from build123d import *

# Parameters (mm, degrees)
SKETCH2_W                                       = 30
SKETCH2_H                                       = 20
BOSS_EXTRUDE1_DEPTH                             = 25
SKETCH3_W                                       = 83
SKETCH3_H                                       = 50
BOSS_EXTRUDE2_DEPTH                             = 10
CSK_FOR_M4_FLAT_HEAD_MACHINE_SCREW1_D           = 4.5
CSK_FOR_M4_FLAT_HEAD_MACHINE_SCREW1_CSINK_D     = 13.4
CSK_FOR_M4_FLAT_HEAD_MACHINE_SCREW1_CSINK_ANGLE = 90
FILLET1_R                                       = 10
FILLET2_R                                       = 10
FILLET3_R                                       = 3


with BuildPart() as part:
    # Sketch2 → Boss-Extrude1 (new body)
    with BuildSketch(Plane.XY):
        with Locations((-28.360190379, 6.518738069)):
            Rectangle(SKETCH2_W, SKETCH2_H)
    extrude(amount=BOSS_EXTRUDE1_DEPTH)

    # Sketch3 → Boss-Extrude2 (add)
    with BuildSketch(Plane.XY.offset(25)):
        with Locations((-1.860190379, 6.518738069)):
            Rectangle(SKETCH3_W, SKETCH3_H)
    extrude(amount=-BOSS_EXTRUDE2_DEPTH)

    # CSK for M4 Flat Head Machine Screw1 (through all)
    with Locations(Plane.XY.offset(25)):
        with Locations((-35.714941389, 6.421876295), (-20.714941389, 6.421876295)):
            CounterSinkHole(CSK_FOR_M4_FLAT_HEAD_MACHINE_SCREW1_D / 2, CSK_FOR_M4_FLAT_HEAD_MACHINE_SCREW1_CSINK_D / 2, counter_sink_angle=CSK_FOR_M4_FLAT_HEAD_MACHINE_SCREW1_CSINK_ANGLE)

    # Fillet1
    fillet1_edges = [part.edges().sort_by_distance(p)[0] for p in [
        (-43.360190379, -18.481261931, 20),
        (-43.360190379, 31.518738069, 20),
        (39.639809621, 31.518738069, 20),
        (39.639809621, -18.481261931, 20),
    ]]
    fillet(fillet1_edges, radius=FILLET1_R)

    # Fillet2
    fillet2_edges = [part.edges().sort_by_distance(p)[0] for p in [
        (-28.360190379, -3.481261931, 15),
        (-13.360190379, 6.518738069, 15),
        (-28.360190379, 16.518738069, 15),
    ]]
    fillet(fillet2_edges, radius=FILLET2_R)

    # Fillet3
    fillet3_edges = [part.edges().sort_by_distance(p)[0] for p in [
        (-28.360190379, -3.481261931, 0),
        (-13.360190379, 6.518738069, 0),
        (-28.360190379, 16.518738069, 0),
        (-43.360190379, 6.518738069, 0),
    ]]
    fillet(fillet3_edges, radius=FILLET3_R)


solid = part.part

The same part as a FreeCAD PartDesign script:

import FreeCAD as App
import Part
import Sketcher

V = App.Vector


def edges_at(feature, points):
    """Names of the edges that pass closest to the given points."""
    edges = feature.Shape.Edges
    near = lambda p: min(range(len(edges)), key=lambda i: edges[i].distToShape(Part.Vertex(*p))[0])
    return sorted({f"Edge{near(p) + 1}" for p in points})


def add_polygon(sketch, points):
    """Adds a closed chain of lines whose ends are joined by coincident constraints."""
    first, n = sketch.GeometryCount, len(points)
    for a, b in zip(points, points[1:] + points[:1]):
        sketch.addGeometry(Part.LineSegment(App.Vector(*a, 0), App.Vector(*b, 0)), False)
    for i in range(n):
        sketch.addConstraint(Sketcher.Constraint("Coincident", first + i, 2, first + (i + 1) % n, 1))

doc = App.newDocument("Part")
body = doc.addObject("PartDesign::Body", "Body")

# Sketch on XY plane
sketch1 = doc.addObject("Sketcher::SketchObject", "Sketch")
body.addObject(sketch1)
sketch1.AttachmentSupport = (doc.XY_Plane, [""])
sketch1.MapMode = "FlatFace"
add_polygon(sketch1, [(-43, 17), (-43, -3), (-13, -3), (-13, 17)])  # lines 0-3
sketch1.addConstraint([
    Sketcher.Constraint("Vertical", 0),
    Sketcher.Constraint("Horizontal", 1),
    Sketcher.Constraint("Vertical", 2),
    Sketcher.Constraint("Horizontal", 3),
    Sketcher.Constraint("DistanceX", 1, 1, 1, 2, 30.0),
    Sketcher.Constraint("DistanceY", 0, 2, 0, 1, 20.0),
    Sketcher.Constraint("DistanceX", 0, 2, -1, 1, 43.36019),
    Sketcher.Constraint("DistanceY", 0, 2, -1, 1, 3.481262),
])
pad1 = doc.addObject("PartDesign::Pad", "Pad")
body.addObject(pad1)
pad1.Profile = sketch1
pad1.Length = 25

# Sketch on XY plane
sketch2 = doc.addObject("Sketcher::SketchObject", "Sketch001")
body.addObject(sketch2)
sketch2.AttachmentSupport = (doc.XY_Plane, [""])
sketch2.MapMode = "FlatFace"
sketch2.AttachmentOffset = App.Placement(V(0, 0, 25), App.Rotation())
add_polygon(sketch2, [(-43, 32), (-43, -18), (40, -18), (40, 32)])  # lines 0-3
sketch2.addConstraint([
    Sketcher.Constraint("Vertical", 0),
    Sketcher.Constraint("Horizontal", 1),
    Sketcher.Constraint("Vertical", 2),
    Sketcher.Constraint("Horizontal", 3),
    Sketcher.Constraint("DistanceX", 1, 1, 1, 2, 83.0),
    Sketcher.Constraint("DistanceY", 0, 2, 0, 1, 50.0),
    Sketcher.Constraint("DistanceX", 0, 2, -1, 1, 43.36019),
    Sketcher.Constraint("DistanceY", 0, 2, -1, 1, 18.481262),
])
pad2 = doc.addObject("PartDesign::Pad", "Pad001")
body.addObject(pad2)
pad2.Profile = sketch2
pad2.Length = 10
pad2.Reversed = True

# Sketch on XY plane
sketch3 = doc.addObject("Sketcher::SketchObject", "Sketch002")
body.addObject(sketch3)
sketch3.AttachmentSupport = (doc.XY_Plane, [""])
sketch3.MapMode = "FlatFace"
sketch3.AttachmentOffset = App.Placement(V(0, 0, 25), App.Rotation())
sketch3.addGeometry([
    Part.Circle(V(-35.7, 6.4, 0), V(0, 0, 1), 2.2),
    Part.Circle(V(-20.7, 6.4, 0), V(0, 0, 1), 2.2),
], False)
sketch3.addConstraint([
    Sketcher.Constraint("Equal", 0, 1),
    Sketcher.Constraint("Horizontal", 0, 3, 1, 3),
    Sketcher.Constraint("Diameter", 0, 4.5),
    Sketcher.Constraint("DistanceX", 0, 3, 1, 3, 15.0),
    Sketcher.Constraint("DistanceX", 0, 3, -1, 1, 35.714941),
    Sketcher.Constraint("DistanceY", -1, 1, 0, 3, 6.421876),
])
doc.recompute()
hole = doc.addObject("PartDesign::Hole", "Hole")
body.addObject(hole)
hole.Profile = sketch3
hole.ThreadType = "None"
hole.Diameter = 4.5
hole.DepthType = "ThroughAll"
hole.HoleCutType = "Countersink"
hole.HoleCutDiameter = 13.4
hole.HoleCutCountersinkAngle = 90
doc.recompute()

fillet = doc.addObject("PartDesign::Fillet", "Fillet")
body.addObject(fillet)
fillet.Base = (hole, edges_at(hole, [
    (-43.36, -18.481, 20),
    (-43.36, 31.519, 20),
    (39.64, 31.519, 20),
    (39.64, -18.481, 20),
]))
fillet.Radius = 10
doc.recompute()

fillet2 = doc.addObject("PartDesign::Fillet", "Fillet001")
body.addObject(fillet2)
fillet2.Base = (fillet, edges_at(fillet, [(-28.36, -3.481, 15), (-13.36, 6.519, 15), (-28.36, 16.519, 15)]))
fillet2.Radius = 10
doc.recompute()

fillet3 = doc.addObject("PartDesign::Fillet", "Fillet002")
body.addObject(fillet3)
fillet3.Base = (fillet2, edges_at(fillet2, [
    (-28.36, -3.481, 0),
    (-13.36, 6.519, 0),
    (-28.36, 16.519, 0),
    (-43.36, 6.519, 0),
]))
fillet3.Radius = 3

doc.recompute()
